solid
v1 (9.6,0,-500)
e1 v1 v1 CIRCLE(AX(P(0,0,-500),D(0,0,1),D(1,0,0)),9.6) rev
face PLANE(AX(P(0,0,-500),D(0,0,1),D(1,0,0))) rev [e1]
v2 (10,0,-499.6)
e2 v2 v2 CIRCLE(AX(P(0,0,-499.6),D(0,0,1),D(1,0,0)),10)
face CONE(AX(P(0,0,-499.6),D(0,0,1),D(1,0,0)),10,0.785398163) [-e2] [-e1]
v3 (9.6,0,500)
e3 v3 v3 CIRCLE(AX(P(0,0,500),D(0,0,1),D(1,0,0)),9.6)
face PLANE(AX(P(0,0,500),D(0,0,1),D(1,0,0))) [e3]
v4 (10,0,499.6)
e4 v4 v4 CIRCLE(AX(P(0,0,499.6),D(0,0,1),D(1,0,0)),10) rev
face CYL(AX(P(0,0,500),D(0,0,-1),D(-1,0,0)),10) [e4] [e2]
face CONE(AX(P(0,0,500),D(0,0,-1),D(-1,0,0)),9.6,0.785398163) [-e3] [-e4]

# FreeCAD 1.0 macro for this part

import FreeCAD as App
import Part
import Sketcher
Q = App.Units.Quantity


def edges_at(feature, points):
    """Names of the edges that pass closest to the given points."""
    edges = feature.Shape.Edges
    near = lambda p: min(range(len(edges)), key=lambda i: edges[i].distToShape(Part.Vertex(*p))[0])
    return sorted({f"Edge{near(p) + 1}" for p in points})

doc = App.newDocument("Part")
body = doc.addObject("PartDesign::Body", "Body")

# Sketch on XY plane
sketch1 = body.newObject("Sketcher::SketchObject", "Sketch")
sketch1.AttachmentSupport = (doc.getObject("XY_Plane"), [""])
sketch1.MapMode = "FlatFace"
sketch1.addGeometry(Part.Circle(App.Vector(0, 0, 0), App.Vector(0, 0, 1), 10), False)
sketch1.addConstraint(Sketcher.Constraint("Coincident", 0, 3, -1, 1))
sketch1.addConstraint(Sketcher.Constraint("Diameter", 0, Q("20 mm")))
pad1 = body.newObject("PartDesign::Pad", "Pad")
pad1.Profile = sketch1
pad1.Type = "TwoLengths"
pad1.Length = 500
pad1.Length2 = 500
doc.recompute()

chamfer = body.newObject("PartDesign::Chamfer", "Chamfer")
chamfer.Base = (pad1, edges_at(pad1, [(-10, 0, -500), (-10, 0, 500)]))
chamfer.Size = 0.4

doc.recompute()
